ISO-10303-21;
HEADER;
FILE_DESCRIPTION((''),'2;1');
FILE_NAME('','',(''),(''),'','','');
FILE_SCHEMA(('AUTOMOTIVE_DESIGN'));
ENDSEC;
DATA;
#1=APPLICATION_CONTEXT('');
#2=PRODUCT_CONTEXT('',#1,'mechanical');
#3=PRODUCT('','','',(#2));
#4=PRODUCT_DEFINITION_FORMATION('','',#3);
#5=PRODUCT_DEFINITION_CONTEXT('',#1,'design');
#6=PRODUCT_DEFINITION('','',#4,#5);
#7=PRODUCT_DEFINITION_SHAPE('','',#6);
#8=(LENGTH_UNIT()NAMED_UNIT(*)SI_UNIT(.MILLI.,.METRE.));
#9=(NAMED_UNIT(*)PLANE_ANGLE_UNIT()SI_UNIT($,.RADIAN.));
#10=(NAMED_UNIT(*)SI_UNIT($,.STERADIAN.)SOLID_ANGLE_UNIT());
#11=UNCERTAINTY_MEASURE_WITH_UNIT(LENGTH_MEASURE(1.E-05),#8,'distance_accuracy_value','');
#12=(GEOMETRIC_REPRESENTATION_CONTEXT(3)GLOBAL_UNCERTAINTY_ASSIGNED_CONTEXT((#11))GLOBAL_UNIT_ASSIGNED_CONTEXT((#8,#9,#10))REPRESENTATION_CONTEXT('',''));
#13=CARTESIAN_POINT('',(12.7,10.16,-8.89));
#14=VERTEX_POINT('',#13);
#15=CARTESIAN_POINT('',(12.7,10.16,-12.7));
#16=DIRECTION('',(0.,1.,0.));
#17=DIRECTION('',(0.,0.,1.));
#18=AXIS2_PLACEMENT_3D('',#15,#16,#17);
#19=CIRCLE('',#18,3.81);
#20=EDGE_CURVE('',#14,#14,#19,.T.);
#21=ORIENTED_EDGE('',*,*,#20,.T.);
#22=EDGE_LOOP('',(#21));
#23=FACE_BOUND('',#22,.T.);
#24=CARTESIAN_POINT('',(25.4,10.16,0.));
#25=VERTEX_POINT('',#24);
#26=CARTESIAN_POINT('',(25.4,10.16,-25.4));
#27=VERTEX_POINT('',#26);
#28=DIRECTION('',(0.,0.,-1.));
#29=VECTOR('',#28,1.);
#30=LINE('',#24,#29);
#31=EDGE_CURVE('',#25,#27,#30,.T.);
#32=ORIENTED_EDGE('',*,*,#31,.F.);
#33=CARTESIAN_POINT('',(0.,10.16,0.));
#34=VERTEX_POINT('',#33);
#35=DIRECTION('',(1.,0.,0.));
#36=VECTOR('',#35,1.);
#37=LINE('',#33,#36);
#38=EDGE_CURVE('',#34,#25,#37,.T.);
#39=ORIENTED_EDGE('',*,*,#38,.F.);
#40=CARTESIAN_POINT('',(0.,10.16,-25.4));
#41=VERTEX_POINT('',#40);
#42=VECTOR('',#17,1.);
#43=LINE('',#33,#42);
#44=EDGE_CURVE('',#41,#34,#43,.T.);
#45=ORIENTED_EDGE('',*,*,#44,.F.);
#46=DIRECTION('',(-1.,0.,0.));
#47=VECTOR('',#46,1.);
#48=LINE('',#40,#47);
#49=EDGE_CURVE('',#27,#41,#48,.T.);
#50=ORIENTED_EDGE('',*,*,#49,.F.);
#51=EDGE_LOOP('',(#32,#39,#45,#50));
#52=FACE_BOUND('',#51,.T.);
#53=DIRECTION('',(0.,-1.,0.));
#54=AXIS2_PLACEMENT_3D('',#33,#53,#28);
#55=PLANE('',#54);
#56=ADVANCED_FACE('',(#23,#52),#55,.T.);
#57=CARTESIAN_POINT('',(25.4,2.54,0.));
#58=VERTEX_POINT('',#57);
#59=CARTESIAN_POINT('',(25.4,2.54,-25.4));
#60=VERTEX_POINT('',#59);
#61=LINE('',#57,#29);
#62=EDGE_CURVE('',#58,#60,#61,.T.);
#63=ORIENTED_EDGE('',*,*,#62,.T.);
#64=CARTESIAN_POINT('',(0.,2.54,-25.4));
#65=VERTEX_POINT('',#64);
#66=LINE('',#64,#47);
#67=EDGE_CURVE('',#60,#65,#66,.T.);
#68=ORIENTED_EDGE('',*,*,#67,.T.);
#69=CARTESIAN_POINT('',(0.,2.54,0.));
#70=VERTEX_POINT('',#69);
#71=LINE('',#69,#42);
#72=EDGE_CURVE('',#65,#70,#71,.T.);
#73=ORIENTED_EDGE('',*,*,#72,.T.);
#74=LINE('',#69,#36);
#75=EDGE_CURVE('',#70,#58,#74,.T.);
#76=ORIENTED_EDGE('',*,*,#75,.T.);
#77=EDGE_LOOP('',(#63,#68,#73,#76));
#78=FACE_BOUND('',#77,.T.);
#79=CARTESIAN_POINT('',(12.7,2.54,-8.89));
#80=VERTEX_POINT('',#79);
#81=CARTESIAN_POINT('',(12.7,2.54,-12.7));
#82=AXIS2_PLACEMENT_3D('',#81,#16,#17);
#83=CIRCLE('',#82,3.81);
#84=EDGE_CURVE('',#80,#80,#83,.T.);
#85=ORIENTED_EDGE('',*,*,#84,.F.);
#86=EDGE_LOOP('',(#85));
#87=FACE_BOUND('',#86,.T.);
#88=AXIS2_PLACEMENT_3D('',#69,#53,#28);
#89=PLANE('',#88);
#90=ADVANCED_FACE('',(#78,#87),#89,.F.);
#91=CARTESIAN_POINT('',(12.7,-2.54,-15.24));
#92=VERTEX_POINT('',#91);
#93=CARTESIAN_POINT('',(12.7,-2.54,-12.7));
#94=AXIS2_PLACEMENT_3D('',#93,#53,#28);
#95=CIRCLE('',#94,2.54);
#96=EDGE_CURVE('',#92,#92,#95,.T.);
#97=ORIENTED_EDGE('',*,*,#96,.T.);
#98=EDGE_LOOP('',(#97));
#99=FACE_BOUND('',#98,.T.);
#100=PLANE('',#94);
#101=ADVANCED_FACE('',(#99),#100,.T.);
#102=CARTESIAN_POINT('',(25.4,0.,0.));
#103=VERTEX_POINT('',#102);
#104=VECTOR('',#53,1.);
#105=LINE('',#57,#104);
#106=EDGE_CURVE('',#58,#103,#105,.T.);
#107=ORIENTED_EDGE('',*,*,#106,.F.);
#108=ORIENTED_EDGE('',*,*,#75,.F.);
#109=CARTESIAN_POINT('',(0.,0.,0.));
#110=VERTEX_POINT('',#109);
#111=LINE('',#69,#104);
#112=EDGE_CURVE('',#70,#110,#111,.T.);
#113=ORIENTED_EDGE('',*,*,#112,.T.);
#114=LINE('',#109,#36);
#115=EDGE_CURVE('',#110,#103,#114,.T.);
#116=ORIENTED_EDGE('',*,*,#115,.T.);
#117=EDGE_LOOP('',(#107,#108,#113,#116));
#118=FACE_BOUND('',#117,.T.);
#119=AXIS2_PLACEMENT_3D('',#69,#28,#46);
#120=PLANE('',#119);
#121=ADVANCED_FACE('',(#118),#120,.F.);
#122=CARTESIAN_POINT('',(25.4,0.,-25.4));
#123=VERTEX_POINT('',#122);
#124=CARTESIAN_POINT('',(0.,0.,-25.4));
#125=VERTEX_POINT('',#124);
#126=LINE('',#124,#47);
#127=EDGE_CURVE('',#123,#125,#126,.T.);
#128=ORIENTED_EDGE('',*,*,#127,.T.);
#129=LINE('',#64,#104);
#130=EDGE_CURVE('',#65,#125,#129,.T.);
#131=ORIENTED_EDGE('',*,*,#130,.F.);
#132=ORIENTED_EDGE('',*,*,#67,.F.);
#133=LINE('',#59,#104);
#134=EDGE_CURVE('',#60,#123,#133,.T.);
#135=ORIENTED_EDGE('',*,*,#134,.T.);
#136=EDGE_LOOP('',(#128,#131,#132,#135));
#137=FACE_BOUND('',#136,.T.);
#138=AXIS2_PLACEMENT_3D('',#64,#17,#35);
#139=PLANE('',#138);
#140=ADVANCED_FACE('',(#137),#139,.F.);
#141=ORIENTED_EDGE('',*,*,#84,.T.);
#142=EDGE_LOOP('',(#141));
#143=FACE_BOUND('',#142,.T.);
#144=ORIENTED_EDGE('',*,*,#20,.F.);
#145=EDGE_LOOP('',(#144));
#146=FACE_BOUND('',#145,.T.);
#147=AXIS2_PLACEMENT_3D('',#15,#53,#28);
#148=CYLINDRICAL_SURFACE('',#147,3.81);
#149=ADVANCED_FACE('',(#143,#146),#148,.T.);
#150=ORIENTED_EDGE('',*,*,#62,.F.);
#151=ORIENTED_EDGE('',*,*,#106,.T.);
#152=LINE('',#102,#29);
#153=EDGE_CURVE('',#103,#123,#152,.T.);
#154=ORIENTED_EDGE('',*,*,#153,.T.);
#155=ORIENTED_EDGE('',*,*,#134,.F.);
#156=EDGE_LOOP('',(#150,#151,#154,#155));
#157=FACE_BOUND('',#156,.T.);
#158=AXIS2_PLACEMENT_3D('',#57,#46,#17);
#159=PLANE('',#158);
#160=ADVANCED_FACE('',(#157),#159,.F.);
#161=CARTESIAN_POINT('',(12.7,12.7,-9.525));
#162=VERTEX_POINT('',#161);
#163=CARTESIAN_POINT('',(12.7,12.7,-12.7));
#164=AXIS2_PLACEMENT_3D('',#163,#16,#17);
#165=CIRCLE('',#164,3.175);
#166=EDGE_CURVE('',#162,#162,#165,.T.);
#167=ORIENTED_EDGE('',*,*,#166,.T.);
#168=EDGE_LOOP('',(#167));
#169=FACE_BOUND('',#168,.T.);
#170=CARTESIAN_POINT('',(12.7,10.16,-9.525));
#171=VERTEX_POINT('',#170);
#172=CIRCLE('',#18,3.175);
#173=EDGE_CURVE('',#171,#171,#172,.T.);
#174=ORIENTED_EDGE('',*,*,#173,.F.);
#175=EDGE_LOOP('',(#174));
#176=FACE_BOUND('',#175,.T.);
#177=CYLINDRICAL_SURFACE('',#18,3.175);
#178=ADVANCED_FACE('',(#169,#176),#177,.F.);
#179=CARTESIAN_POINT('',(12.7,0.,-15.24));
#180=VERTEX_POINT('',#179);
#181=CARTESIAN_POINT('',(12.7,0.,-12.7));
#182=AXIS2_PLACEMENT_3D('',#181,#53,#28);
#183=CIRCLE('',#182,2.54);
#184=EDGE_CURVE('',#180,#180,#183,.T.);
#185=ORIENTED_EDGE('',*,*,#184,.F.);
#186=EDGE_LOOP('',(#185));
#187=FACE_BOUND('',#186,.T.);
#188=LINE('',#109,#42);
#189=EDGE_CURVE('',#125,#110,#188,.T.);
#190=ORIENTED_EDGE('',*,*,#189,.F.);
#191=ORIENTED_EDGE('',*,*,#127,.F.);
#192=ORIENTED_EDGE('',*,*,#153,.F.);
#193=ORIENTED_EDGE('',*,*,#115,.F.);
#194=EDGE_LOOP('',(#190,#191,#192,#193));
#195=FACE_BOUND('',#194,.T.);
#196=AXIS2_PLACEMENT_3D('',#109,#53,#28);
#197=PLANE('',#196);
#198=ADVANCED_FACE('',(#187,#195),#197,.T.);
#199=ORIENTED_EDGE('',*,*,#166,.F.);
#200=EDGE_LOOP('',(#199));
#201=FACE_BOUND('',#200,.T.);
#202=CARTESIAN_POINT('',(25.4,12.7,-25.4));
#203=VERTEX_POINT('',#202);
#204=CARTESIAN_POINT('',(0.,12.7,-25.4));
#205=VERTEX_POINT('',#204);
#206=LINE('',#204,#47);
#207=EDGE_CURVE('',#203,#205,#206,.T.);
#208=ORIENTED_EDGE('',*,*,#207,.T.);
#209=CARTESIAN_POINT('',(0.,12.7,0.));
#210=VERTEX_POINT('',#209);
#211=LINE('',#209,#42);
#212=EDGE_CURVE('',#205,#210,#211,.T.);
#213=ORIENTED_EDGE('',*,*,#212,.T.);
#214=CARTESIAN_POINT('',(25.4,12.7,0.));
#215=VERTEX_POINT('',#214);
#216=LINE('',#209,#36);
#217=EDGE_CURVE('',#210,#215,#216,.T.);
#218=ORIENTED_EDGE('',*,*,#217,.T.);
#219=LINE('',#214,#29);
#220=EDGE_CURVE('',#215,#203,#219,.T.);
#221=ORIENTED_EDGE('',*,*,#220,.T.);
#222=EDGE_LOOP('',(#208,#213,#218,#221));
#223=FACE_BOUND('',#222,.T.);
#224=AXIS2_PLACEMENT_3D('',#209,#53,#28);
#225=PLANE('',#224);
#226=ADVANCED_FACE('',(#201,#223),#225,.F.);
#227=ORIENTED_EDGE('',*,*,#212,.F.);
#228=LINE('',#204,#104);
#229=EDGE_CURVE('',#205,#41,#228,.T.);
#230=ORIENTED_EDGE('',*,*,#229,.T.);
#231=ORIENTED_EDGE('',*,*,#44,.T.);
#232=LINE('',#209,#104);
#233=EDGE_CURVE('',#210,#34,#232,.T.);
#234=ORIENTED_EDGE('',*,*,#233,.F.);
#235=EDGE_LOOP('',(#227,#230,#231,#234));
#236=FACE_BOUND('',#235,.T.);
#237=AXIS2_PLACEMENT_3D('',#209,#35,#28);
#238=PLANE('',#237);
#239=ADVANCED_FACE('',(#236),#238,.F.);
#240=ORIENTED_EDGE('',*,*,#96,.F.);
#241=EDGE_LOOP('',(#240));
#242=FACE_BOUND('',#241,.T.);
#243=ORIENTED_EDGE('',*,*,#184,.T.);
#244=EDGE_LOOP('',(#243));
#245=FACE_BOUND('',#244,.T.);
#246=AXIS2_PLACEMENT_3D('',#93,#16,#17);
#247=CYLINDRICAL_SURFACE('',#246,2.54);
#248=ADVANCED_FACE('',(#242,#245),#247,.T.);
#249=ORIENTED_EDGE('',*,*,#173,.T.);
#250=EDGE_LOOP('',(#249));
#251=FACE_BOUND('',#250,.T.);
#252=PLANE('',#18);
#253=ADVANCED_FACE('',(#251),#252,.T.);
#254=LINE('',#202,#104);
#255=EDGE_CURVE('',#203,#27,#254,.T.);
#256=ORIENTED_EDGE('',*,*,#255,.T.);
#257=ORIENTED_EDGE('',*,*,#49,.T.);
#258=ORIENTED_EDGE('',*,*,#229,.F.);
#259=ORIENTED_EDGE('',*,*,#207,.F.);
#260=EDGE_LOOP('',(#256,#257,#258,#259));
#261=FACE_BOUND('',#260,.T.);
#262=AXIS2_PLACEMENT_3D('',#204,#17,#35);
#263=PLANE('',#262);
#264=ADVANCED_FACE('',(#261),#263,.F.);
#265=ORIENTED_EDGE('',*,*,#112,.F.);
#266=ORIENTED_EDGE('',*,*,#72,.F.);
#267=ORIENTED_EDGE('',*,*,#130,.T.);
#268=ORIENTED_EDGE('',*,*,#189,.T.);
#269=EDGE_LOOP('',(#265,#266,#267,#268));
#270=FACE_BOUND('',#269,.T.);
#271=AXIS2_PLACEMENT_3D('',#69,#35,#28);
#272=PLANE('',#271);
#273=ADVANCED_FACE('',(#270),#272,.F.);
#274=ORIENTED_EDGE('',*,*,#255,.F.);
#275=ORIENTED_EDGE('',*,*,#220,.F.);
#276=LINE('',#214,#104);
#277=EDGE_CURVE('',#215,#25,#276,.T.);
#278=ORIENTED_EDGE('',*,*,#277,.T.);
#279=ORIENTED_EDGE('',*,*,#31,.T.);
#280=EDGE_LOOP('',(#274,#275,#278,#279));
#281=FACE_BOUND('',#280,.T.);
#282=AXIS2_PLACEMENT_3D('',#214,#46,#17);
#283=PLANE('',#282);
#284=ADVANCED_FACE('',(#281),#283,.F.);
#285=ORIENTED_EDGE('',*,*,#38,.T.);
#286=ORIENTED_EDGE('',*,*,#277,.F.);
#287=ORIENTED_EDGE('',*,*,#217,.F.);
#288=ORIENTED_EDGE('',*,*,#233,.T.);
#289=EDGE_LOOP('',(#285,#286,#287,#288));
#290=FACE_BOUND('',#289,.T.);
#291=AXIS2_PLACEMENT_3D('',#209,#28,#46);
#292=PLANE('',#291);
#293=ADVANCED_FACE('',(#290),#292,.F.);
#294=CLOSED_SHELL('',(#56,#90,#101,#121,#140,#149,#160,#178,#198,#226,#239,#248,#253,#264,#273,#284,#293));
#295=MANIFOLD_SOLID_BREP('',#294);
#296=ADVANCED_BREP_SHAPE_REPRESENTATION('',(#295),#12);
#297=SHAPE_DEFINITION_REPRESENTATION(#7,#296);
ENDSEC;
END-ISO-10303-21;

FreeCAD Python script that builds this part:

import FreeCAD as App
import Part
import Sketcher

V = App.Vector
Q = App.Units.Quantity

doc = App.newDocument("Part")
body = doc.addObject("PartDesign::Body", "Body")

# Sketch on XZ plane
sketch1 = body.newObject("Sketcher::SketchObject", "Sketch")
sketch1.AttachmentSupport = (doc.getObject("XZ_Plane"), [""])
sketch1.MapMode = "FlatFace"
sketch1.addGeometry([
    Part.LineSegment(V(0, -25, 0), V(0, 0, 0)),
    Part.LineSegment(V(0, 0, 0), V(25, 0, 0)),
    Part.LineSegment(V(25, 0, 0), V(25, -25, 0)),
    Part.LineSegment(V(25, -25, 0), V(0, -25, 0)),
], False)
sketch1.addConstraint([
    Sketcher.Constraint("Coincident", 0, 2, 1, 1),
    Sketcher.Constraint("Coincident", 1, 2, 2, 1),
    Sketcher.Constraint("Coincident", 2, 2, 3, 1),
    Sketcher.Constraint("Coincident", 3, 2, 0, 1),
    Sketcher.Constraint("Vertical", 0),
    Sketcher.Constraint("Horizontal", 1),
    Sketcher.Constraint("Vertical", 2),
    Sketcher.Constraint("Horizontal", 3),
    Sketcher.Constraint("Coincident", 0, 2, -1, 1),
    Sketcher.Constraint("Equal", 3, 0),
    Sketcher.Constraint("DistanceX", 1, 1, 1, 2, Q("1 in")),
])
pad1 = body.newObject("PartDesign::Pad", "Pad")
pad1.Profile = sketch1
pad1.Length = Q("0.1 in")
pad1.Reversed = True

# Sketch on XZ plane
sketch2 = body.newObject("Sketcher::SketchObject", "Sketch001")
sketch2.AttachmentSupport = (doc.getObject("XZ_Plane"), [""])
sketch2.MapMode = "FlatFace"
sketch2.addGeometry(Part.Circle(V(12.7, -12.7, 0), V(0, 0, 1), 2.5), False)
sketch2.addConstraint([
    Sketcher.Constraint("Diameter", 0, Q("0.2 in")),
    Sketcher.Constraint("DistanceX", -1, 1, 0, 3, Q("0.5 in")),
    Sketcher.Constraint("DistanceY", 0, 3, -1, 1, Q("0.5 in")),
])
pad2 = body.newObject("PartDesign::Pad", "Pad001")
pad2.Profile = sketch2
pad2.Length = Q("0.1 in")

# Sketch on XZ plane
sketch3 = body.newObject("Sketcher::SketchObject", "Sketch002")
sketch3.AttachmentSupport = (doc.getObject("XZ_Plane"), [""])
sketch3.MapMode = "FlatFace"
sketch3.AttachmentOffset = App.Placement(V(0, 0, -0.1 * 25.4), App.Rotation())
sketch3.addGeometry(Part.Circle(V(12.7, -12.7, 0), V(0, 0, 1), 3.8), False)
sketch3.addConstraint([
    Sketcher.Constraint("Diameter", 0, Q("0.3 in")),
    Sketcher.Constraint("DistanceX", -1, 1, 0, 3, Q("0.5 in")),
    Sketcher.Constraint("DistanceY", 0, 3, -1, 1, Q("0.5 in")),
])
pad3 = body.newObject("PartDesign::Pad", "Pad002")
pad3.Profile = sketch3
pad3.Length = Q("0.3 in")
pad3.Reversed = True

# Sketch on XZ plane
sketch4 = body.newObject("Sketcher::SketchObject", "Sketch003")
sketch4.AttachmentSupport = (doc.getObject("XZ_Plane"), [""])
sketch4.MapMode = "FlatFace"
sketch4.AttachmentOffset = App.Placement(V(0, 0, -0.4 * 25.4), App.Rotation())
sketch4.addGeometry([
    Part.LineSegment(V(0, -25, 0), V(0, 0, 0)),
    Part.LineSegment(V(0, 0, 0), V(25, 0, 0)),
    Part.LineSegment(V(25, 0, 0), V(25, -25, 0)),
    Part.LineSegment(V(25, -25, 0), V(0, -25, 0)),
], False)
sketch4.addConstraint([
    Sketcher.Constraint("Coincident", 0, 2, 1, 1),
    Sketcher.Constraint("Coincident", 1, 2, 2, 1),
    Sketcher.Constraint("Coincident", 2, 2, 3, 1),
    Sketcher.Constraint("Coincident", 3, 2, 0, 1),
    Sketcher.Constraint("Vertical", 0),
    Sketcher.Constraint("Horizontal", 1),
    Sketcher.Constraint("Vertical", 2),
    Sketcher.Constraint("Horizontal", 3),
    Sketcher.Constraint("Coincident", 0, 2, -1, 1),
    Sketcher.Constraint("Equal", 3, 0),
    Sketcher.Constraint("DistanceX", 1, 1, 1, 2, Q("1 in")),
])
pad4 = body.newObject("PartDesign::Pad", "Pad003")
pad4.Profile = sketch4
pad4.Length = Q("0.1 in")
pad4.Reversed = True

# Sketch on XZ plane
sketch5 = body.newObject("Sketcher::SketchObject", "Sketch004")
sketch5.AttachmentSupport = (doc.getObject("XZ_Plane"), [""])
sketch5.MapMode = "FlatFace"
sketch5.AttachmentOffset = App.Placement(V(0, 0, -0.5 * 25.4), App.Rotation())
sketch5.addGeometry(Part.Circle(V(12.7, -12.7, 0), V(0, 0, 1), 3.2), False)
sketch5.addConstraint([
    Sketcher.Constraint("Diameter", 0, Q("0.25 in")),
    Sketcher.Constraint("DistanceX", -1, 1, 0, 3, Q("0.5 in")),
    Sketcher.Constraint("DistanceY", 0, 3, -1, 1, Q("0.5 in")),
])
pocket1 = body.newObject("PartDesign::Pocket", "Pocket")
pocket1.Profile = sketch5
pocket1.Length = Q("0.1 in")
pocket1.Reversed = True

doc.recompute()
